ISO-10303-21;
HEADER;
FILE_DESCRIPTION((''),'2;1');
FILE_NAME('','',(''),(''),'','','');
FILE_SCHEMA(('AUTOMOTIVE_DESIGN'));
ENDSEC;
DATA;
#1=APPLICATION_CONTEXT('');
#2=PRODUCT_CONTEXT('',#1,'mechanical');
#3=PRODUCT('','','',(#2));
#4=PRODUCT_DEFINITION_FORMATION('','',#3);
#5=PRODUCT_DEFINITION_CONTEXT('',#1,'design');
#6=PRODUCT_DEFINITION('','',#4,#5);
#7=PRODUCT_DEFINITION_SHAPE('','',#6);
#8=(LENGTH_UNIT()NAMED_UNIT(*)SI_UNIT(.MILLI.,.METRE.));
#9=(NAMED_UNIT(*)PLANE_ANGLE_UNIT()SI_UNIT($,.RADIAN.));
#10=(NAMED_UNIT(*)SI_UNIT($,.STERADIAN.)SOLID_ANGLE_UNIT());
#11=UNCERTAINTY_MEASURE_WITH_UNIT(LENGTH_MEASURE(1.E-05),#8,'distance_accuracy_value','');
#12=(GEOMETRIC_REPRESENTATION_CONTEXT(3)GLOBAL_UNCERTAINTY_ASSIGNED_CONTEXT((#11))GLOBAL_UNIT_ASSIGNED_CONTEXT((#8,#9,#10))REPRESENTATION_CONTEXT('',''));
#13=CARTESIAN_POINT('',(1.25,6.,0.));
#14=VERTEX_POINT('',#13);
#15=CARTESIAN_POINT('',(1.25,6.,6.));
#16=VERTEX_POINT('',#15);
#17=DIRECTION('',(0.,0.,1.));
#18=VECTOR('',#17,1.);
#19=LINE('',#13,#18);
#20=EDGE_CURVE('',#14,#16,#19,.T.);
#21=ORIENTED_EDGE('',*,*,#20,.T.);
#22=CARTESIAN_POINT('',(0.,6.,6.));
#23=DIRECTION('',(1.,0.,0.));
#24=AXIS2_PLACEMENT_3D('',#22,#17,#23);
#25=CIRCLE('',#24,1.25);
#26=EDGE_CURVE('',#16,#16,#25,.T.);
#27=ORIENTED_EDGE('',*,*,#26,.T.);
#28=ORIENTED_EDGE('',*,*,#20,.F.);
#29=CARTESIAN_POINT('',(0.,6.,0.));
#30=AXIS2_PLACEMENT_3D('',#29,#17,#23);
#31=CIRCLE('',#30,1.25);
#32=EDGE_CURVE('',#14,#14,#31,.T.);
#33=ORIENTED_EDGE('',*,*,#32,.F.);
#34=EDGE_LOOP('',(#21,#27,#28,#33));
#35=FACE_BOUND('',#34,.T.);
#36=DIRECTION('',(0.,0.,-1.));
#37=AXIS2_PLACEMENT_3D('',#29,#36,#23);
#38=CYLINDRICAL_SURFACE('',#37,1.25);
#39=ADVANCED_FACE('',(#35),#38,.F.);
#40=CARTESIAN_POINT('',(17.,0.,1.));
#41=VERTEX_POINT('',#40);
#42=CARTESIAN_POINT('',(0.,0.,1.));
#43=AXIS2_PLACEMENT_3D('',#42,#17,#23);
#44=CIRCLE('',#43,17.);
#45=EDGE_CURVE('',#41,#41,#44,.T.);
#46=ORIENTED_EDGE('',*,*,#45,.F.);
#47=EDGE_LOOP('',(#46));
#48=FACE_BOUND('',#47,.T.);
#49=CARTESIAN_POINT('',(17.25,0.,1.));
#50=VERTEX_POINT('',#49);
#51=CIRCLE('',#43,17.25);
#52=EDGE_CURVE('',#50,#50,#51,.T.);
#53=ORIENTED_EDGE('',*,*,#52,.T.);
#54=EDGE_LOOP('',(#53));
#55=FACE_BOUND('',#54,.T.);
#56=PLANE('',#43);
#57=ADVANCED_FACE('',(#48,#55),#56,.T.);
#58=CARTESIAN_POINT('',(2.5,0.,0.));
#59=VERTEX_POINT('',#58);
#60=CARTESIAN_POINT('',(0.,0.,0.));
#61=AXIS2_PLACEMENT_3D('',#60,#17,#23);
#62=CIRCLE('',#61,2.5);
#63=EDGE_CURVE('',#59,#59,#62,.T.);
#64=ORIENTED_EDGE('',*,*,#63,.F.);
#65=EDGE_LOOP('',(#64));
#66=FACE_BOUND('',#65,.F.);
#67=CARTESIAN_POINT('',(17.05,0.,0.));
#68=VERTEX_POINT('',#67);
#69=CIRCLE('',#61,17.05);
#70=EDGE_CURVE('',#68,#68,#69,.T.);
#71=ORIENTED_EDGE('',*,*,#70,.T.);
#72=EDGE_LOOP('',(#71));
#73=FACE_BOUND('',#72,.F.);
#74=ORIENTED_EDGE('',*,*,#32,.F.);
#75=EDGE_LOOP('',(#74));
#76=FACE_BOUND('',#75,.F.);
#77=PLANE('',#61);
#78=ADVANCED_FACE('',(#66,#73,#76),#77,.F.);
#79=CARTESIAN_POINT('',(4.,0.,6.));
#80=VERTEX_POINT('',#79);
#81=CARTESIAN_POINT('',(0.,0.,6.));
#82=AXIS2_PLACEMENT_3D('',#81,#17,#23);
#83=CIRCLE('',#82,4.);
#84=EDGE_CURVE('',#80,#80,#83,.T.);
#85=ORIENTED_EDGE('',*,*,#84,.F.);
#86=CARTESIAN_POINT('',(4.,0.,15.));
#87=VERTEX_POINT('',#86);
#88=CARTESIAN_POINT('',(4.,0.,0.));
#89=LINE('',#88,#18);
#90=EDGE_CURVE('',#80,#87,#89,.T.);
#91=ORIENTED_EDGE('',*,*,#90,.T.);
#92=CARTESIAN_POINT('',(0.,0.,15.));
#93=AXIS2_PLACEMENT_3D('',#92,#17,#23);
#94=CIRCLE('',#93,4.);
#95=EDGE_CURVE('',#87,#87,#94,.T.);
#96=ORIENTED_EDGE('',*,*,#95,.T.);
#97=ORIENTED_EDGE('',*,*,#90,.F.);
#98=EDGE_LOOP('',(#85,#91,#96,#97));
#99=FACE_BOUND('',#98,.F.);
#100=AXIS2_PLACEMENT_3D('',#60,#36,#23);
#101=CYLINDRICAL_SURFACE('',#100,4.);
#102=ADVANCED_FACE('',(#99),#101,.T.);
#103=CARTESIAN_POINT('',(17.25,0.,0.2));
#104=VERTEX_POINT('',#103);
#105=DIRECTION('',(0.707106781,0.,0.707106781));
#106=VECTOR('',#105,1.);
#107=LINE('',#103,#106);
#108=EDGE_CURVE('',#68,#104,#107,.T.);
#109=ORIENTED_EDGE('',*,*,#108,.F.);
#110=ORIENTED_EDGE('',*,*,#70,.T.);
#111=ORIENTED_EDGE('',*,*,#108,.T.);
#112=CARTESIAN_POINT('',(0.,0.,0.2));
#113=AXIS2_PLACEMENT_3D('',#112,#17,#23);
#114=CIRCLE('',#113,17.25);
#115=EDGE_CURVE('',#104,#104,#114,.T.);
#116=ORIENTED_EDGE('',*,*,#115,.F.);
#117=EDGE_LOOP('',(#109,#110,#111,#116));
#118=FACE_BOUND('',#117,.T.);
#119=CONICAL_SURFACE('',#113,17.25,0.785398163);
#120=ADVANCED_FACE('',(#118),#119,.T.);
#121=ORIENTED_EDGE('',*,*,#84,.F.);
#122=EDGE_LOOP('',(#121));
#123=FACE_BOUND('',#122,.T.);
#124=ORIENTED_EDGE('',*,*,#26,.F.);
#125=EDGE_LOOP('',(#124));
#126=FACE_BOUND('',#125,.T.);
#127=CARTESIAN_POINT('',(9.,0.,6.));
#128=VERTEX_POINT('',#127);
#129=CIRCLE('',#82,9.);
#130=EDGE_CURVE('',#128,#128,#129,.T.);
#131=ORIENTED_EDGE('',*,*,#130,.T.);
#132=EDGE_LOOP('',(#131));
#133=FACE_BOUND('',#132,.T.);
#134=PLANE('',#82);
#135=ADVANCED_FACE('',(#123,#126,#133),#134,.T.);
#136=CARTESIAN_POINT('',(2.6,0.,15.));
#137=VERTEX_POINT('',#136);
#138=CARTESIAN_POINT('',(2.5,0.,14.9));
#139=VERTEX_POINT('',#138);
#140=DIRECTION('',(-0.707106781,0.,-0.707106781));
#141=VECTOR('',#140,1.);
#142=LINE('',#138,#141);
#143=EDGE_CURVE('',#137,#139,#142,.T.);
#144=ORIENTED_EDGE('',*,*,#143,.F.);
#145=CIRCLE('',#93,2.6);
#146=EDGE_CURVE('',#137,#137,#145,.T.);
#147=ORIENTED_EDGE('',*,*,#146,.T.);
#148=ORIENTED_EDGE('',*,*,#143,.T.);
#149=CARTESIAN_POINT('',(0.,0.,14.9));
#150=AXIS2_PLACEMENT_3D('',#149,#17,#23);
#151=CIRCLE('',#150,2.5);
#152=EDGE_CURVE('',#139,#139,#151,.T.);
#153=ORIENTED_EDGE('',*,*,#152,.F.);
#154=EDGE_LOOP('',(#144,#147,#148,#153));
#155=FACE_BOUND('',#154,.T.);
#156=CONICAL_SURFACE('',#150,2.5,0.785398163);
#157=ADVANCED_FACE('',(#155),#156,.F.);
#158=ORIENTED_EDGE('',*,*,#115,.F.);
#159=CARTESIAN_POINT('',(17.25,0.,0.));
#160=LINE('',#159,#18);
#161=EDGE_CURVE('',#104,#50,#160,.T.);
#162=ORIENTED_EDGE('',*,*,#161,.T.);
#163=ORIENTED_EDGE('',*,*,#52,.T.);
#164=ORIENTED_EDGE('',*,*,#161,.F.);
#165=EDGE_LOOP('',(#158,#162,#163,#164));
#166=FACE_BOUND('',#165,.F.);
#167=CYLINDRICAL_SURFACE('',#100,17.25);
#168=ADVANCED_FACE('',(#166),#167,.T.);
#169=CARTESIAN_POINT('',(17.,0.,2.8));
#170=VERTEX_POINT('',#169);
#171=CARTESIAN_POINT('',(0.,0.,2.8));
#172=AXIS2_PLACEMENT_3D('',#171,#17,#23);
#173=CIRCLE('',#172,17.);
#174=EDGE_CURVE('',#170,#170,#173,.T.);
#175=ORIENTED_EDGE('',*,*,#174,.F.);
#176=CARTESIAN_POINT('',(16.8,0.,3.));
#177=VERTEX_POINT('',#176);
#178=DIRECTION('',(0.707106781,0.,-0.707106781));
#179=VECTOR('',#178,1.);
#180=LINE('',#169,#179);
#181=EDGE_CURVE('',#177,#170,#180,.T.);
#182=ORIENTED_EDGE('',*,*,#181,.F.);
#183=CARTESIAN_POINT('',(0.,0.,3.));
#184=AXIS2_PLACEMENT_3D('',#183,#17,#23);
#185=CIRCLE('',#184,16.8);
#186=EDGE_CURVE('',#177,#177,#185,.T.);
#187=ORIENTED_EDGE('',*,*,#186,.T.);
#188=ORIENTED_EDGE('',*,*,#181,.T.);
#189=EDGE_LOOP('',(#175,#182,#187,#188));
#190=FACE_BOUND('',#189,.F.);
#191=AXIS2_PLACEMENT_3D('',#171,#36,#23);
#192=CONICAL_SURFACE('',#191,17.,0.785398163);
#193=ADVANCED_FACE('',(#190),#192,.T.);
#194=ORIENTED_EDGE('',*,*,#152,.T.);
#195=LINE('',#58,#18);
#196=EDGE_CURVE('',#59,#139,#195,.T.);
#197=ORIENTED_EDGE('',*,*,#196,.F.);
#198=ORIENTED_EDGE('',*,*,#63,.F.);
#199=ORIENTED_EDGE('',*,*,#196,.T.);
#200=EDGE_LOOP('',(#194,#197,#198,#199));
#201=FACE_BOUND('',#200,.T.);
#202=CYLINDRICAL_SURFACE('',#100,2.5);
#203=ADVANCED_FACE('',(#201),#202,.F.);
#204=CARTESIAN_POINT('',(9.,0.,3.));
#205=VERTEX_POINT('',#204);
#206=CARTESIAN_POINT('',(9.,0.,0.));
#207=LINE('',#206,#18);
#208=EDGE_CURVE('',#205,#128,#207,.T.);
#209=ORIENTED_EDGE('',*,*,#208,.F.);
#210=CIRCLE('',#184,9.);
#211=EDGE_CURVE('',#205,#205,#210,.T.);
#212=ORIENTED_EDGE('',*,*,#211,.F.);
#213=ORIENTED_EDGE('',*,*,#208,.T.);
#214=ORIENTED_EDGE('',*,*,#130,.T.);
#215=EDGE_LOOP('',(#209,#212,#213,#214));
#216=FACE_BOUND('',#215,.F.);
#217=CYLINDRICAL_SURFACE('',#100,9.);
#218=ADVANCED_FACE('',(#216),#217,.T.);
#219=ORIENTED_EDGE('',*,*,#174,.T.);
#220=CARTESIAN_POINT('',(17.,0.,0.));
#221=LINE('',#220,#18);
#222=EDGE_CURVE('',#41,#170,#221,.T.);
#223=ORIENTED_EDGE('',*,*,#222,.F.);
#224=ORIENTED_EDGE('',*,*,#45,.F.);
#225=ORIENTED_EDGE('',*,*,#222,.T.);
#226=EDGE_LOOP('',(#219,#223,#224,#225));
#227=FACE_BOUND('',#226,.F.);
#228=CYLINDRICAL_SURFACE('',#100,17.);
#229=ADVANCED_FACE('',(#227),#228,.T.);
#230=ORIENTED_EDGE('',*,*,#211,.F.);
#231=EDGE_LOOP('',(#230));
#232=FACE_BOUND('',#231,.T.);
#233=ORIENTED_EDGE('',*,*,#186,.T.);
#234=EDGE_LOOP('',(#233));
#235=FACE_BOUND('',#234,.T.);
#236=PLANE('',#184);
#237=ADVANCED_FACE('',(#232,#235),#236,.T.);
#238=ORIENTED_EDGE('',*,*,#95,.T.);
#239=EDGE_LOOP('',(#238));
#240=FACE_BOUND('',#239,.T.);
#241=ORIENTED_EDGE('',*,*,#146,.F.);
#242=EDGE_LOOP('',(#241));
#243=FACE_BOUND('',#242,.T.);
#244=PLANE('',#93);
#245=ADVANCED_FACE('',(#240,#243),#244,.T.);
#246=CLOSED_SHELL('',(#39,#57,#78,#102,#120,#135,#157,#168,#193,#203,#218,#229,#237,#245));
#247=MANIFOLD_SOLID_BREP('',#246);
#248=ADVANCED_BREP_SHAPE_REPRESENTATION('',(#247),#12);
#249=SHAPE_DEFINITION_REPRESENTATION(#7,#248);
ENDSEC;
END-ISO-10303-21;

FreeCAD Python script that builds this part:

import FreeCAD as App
import Part
import Sketcher

V = App.Vector


def edges_at(feature, points):
    """Names of the edges that pass closest to the given points."""
    edges = feature.Shape.Edges
    near = lambda p: min(range(len(edges)), key=lambda i: edges[i].distToShape(Part.Vertex(*p))[0])
    return sorted({f"Edge{near(p) + 1}" for p in points})

doc = App.newDocument("Part")
params = doc.addObject("Spreadsheet::Sheet", "Params")
for row, (alias, value) in enumerate([
    ("sketch1_diameter", "34 mm"),
    ("sketch1_diameter2", "34.5 mm"),
    ("pad1_length", "1 mm"),
    ("sketch2_diameter", "34 mm"),
    ("sketch2_diameter2", "18 mm"),
    ("pad2_length", "3 mm"),
    ("sketch3_diameter", "18 mm"),
    ("sketch3_diameter2", "8 mm"),
    ("sketch3_diameter3", "2.5 mm"),
    ("pad3_length", "6 mm"),
    ("sketch4_diameter", "8 mm"),
    ("sketch4_diameter2", "5 mm"),
    ("pad4_length", "15 mm"),
    ("chamfer_size", "0.2 mm"),
    ("chamfer2_size", "0.1 mm"),
], start=1):
    params.set(f"A{row}", alias)
    params.set(f"B{row}", "=" + value)
    params.setAlias(f"B{row}", alias)

body = doc.addObject("PartDesign::Body", "Body")

sketch1 = doc.addObject("Sketcher::SketchObject", "Sketch")
body.addObject(sketch1)
sketch1.AttachmentSupport = (doc.XY_Plane, [""])
sketch1.MapMode = "FlatFace"
sketch1.addGeometry([
    Part.Circle(V(0, 0, 0), V(0, 0, 1), 17),
    Part.Circle(V(0, 0, 0), V(0, 0, 1), 17),
], False)
sketch1.addConstraint([
    Sketcher.Constraint("Coincident", 0, 3, -1, 1),
    Sketcher.Constraint("Coincident", 1, 3, -1, 1),
    Sketcher.Constraint("Diameter", 1, 34.0),
    Sketcher.Constraint("Diameter", 0, 34.5),
])
sketch1.setExpression("Constraints[2]", "Params.sketch1_diameter")
sketch1.setExpression("Constraints[3]", "Params.sketch1_diameter2")
pad1 = doc.addObject("PartDesign::Pad", "Pad")
body.addObject(pad1)
pad1.Profile = sketch1
pad1.setExpression("Length", "Params.pad1_length")

sketch2 = doc.addObject("Sketcher::SketchObject", "Sketch001")
body.addObject(sketch2)
sketch2.AttachmentSupport = (doc.XY_Plane, [""])
sketch2.MapMode = "FlatFace"
sketch2.addGeometry([
    Part.Circle(V(0, 0, 0), V(0, 0, 1), 17),
    Part.Circle(V(0, 0, 0), V(0, 0, 1), 9),
], False)
sketch2.addConstraint([
    Sketcher.Constraint("Coincident", 0, 3, -1, 1),
    Sketcher.Constraint("Coincident", 1, 3, -1, 1),
    Sketcher.Constraint("Diameter", 0, 34.0),
    Sketcher.Constraint("Diameter", 1, 18.0),
])
sketch2.setExpression("Constraints[2]", "Params.sketch2_diameter")
sketch2.setExpression("Constraints[3]", "Params.sketch2_diameter2")
pad2 = doc.addObject("PartDesign::Pad", "Pad001")
body.addObject(pad2)
pad2.Profile = sketch2
pad2.setExpression("Length", "Params.pad2_length")

sketch3 = doc.addObject("Sketcher::SketchObject", "Sketch002")
body.addObject(sketch3)
sketch3.AttachmentSupport = (doc.XY_Plane, [""])
sketch3.MapMode = "FlatFace"
sketch3.addGeometry([
    Part.Circle(V(0, 0, 0), V(0, 0, 1), 9),
    Part.Circle(V(0, 0, 0), V(0, 0, 1), 4),
    Part.Circle(V(0, 6, 0), V(0, 0, 1), 1.2),
], False)
sketch3.addConstraint([
    Sketcher.Constraint("Coincident", 0, 3, -1, 1),
    Sketcher.Constraint("Coincident", 1, 3, -1, 1),
    Sketcher.Constraint("PointOnObject", 2, 3, -2),
    Sketcher.Constraint("Diameter", 0, 18.0),
    Sketcher.Constraint("Diameter", 1, 8.0),
    Sketcher.Constraint("Diameter", 2, 2.5),
    Sketcher.Constraint("DistanceY", -1, 1, 2, 3, 6.0),
])
sketch3.setExpression("Constraints[3]", "Params.sketch3_diameter")
sketch3.setExpression("Constraints[4]", "Params.sketch3_diameter2")
sketch3.setExpression("Constraints[5]", "Params.sketch3_diameter3")
pad3 = doc.addObject("PartDesign::Pad", "Pad002")
body.addObject(pad3)
pad3.Profile = sketch3
pad3.setExpression("Length", "Params.pad3_length")

sketch4 = doc.addObject("Sketcher::SketchObject", "Sketch003")
body.addObject(sketch4)
sketch4.AttachmentSupport = (doc.XY_Plane, [""])
sketch4.MapMode = "FlatFace"
sketch4.addGeometry([
    Part.Circle(V(0, 0, 0), V(0, 0, 1), 4),
    Part.Circle(V(0, 0, 0), V(0, 0, 1), 2.5),
], False)
sketch4.addConstraint([
    Sketcher.Constraint("Coincident", 0, 3, -1, 1),
    Sketcher.Constraint("Coincident", 1, 3, -1, 1),
    Sketcher.Constraint("Diameter", 0, 8.0),
    Sketcher.Constraint("Diameter", 1, 5.0),
])
sketch4.setExpression("Constraints[2]", "Params.sketch4_diameter")
sketch4.setExpression("Constraints[3]", "Params.sketch4_diameter2")
pad4 = doc.addObject("PartDesign::Pad", "Pad003")
body.addObject(pad4)
pad4.Profile = sketch4
pad4.setExpression("Length", "Params.pad4_length")
doc.recompute()

chamfer = doc.addObject("PartDesign::Chamfer", "Chamfer")
body.addObject(chamfer)
chamfer.Base = (pad4, edges_at(pad4, [(-17.25, 0, 0), (-17, 0, 3)]))
chamfer.setExpression("Size", "Params.chamfer_size")
doc.recompute()

chamfer2 = doc.addObject("PartDesign::Chamfer", "Chamfer001")
body.addObject(chamfer2)
chamfer2.Base = (chamfer, edges_at(chamfer, [(-2.5, 0, 15)]))
chamfer2.setExpression("Size", "Params.chamfer2_size")

doc.recompute()
